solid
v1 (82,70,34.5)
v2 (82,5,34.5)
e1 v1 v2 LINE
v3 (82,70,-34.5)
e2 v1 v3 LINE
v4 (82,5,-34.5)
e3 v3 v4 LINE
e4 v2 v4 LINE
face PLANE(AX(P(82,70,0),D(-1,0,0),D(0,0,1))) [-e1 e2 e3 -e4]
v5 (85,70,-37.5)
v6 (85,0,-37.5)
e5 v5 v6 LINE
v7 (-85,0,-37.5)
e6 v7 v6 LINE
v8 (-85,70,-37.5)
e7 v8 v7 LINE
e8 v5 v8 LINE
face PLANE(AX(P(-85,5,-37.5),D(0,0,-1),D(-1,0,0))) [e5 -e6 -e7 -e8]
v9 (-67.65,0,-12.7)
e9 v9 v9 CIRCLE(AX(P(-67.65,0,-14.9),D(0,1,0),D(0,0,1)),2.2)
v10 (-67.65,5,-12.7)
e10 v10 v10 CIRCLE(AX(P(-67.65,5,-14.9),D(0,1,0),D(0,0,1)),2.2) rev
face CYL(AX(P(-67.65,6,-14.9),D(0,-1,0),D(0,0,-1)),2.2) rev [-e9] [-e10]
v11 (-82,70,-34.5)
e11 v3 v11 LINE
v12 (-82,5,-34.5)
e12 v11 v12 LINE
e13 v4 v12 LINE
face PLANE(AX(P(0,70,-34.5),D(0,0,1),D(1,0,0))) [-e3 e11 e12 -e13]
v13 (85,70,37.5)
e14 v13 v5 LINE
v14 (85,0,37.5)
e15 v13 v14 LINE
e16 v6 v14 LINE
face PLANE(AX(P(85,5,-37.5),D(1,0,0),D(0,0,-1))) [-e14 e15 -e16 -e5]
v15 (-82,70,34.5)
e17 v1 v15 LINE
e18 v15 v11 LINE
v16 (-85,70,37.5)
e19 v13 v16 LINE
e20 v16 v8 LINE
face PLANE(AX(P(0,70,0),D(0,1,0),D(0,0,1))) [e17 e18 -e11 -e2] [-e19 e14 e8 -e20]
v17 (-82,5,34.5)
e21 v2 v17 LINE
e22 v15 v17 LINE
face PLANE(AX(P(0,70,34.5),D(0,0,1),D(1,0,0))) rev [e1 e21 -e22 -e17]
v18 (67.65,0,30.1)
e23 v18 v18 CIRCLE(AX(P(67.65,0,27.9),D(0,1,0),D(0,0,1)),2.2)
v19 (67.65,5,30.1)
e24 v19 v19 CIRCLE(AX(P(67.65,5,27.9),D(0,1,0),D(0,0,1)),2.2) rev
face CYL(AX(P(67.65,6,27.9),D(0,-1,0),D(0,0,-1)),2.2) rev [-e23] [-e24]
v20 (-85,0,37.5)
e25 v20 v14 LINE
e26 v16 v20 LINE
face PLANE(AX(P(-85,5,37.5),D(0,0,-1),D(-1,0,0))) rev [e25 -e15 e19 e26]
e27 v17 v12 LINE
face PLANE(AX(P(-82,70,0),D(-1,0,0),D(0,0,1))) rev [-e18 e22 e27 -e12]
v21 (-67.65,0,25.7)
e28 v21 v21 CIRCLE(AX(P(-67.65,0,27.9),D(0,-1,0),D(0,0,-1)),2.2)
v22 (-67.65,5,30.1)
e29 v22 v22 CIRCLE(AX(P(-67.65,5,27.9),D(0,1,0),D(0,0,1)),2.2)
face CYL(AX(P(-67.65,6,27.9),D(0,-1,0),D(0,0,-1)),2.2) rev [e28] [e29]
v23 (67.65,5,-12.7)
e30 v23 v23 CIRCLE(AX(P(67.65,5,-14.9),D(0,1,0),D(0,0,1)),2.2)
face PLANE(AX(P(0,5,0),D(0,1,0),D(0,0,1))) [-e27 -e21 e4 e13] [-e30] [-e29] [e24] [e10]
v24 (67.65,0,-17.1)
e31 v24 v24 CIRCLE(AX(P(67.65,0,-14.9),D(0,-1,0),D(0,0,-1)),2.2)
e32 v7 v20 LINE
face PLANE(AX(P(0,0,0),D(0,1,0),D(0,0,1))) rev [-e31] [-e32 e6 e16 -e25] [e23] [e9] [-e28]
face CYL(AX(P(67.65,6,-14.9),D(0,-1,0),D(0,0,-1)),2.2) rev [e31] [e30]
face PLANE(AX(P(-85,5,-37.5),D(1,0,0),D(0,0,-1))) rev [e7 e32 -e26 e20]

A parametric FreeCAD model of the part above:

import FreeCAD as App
import Part
import Sketcher

V = App.Vector

doc = App.newDocument("Part")
body = doc.addObject("PartDesign::Body", "Body")

sketch1 = doc.addObject("Sketcher::SketchObject", "Sketch")
body.addObject(sketch1)
sketch1.AttachmentSupport = (doc.XZ_Plane, [""])
sketch1.MapMode = "FlatFace"
sketch1.addGeometry([
    Part.LineSegment(V(-85, -38, 0), V(-85, 38, 0)),
    Part.LineSegment(V(-85, 38, 0), V(85, 38, 0)),
    Part.LineSegment(V(85, 38, 0), V(85, -38, 0)),
    Part.LineSegment(V(85, -38, 0), V(-85, -38, 0)),
], False)
sketch1.addConstraint([
    Sketcher.Constraint("Coincident", 0, 2, 1, 1),
    Sketcher.Constraint("Coincident", 1, 2, 2, 1),
    Sketcher.Constraint("Coincident", 2, 2, 3, 1),
    Sketcher.Constraint("Coincident", 3, 2, 0, 1),
    Sketcher.Constraint("Vertical", 0),
    Sketcher.Constraint("Horizontal", 1),
    Sketcher.Constraint("Vertical", 2),
    Sketcher.Constraint("Horizontal", 3),
    Sketcher.Constraint("Symmetric", 0, 2, 2, 2, -1, 1),
    Sketcher.Constraint("DistanceX", 1, 1, 1, 2, 170.0),
    Sketcher.Constraint("DistanceY", 0, 1, 0, 2, 75.0),
])
pad1 = doc.addObject("PartDesign::Pad", "Pad")
body.addObject(pad1)
pad1.Profile = sketch1
pad1.Length = 5
pad1.Reversed = True

sketch2 = doc.addObject("Sketcher::SketchObject", "Sketch001")
body.addObject(sketch2)
sketch2.AttachmentSupport = (doc.XZ_Plane, [""])
sketch2.MapMode = "FlatFace"
sketch2.AttachmentOffset = App.Placement(V(0, 0, -5), App.Rotation())
sketch2.addGeometry([
    Part.LineSegment(V(-85, -38, 0), V(-85, 38, 0)),
    Part.LineSegment(V(-85, 38, 0), V(85, 38, 0)),
    Part.LineSegment(V(85, 38, 0), V(85, -38, 0)),
    Part.LineSegment(V(85, -38, 0), V(-85, -38, 0)),
    Part.LineSegment(V(82, 34, 0), V(-82, 34, 0)),
    Part.LineSegment(V(-82, 34, 0), V(-82, -34, 0)),
    Part.LineSegment(V(-82, -34, 0), V(82, -34, 0)),
    Part.LineSegment(V(82, -34, 0), V(82, 34, 0)),
], False)
sketch2.addConstraint([
    Sketcher.Constraint("Coincident", 0, 2, 1, 1),
    Sketcher.Constraint("Coincident", 1, 2, 2, 1),
    Sketcher.Constraint("Coincident", 2, 2, 3, 1),
    Sketcher.Constraint("Coincident", 3, 2, 0, 1),
    Sketcher.Constraint("Coincident", 4, 2, 5, 1),
    Sketcher.Constraint("Coincident", 5, 2, 6, 1),
    Sketcher.Constraint("Coincident", 6, 2, 7, 1),
    Sketcher.Constraint("Coincident", 7, 2, 4, 1),
    Sketcher.Constraint("Vertical", 0),
    Sketcher.Constraint("Horizontal", 1),
    Sketcher.Constraint("Vertical", 2),
    Sketcher.Constraint("Horizontal", 3),
    Sketcher.Constraint("Horizontal", 4),
    Sketcher.Constraint("Vertical", 5),
    Sketcher.Constraint("Horizontal", 6),
    Sketcher.Constraint("Vertical", 7),
    Sketcher.Constraint("Symmetric", 0, 2, 2, 2, -1, 1),
    Sketcher.Constraint("Symmetric", 4, 2, 6, 2, -1, 1),
    Sketcher.Constraint("DistanceX", 1, 1, 1, 2, 170.0),
    Sketcher.Constraint("DistanceX", 4, 2, 4, 1, 164.0),
    Sketcher.Constraint("DistanceY", 0, 1, 0, 2, 75.0),
    Sketcher.Constraint("DistanceY", 5, 2, 5, 1, 69.0),
])
pad2 = doc.addObject("PartDesign::Pad", "Pad001")
body.addObject(pad2)
pad2.Profile = sketch2
pad2.Length = 65
pad2.Reversed = True

sketch3 = doc.addObject("Sketcher::SketchObject", "Sketch002")
body.addObject(sketch3)
sketch3.AttachmentSupport = (doc.XZ_Plane, [""])
sketch3.MapMode = "FlatFace"
sketch3.addGeometry([
    Part.Circle(V(-67.7, -14.9, 0), V(0, 0, 1), 2.2),
    Part.Circle(V(67.7, -14.9, 0), V(0, 0, 1), 2.2),
    Part.Circle(V(67.7, 27.9, 0), V(0, 0, 1), 2.2),
    Part.Circle(V(-67.7, 27.9, 0), V(0, 0, 1), 2.2),
], False)
sketch3.addConstraint([
    Sketcher.Constraint("Equal", 0, 1),
    Sketcher.Constraint("Equal", 1, 2),
    Sketcher.Constraint("Equal", 2, 3),
    Sketcher.Constraint("Symmetric", 0, 3, 1, 3, -2),
    Sketcher.Constraint("Symmetric", 2, 3, 3, 3, -2),
    Sketcher.Constraint("Vertical", 1, 3, 2, 3),
    Sketcher.Constraint("Diameter", 0, 4.4),
    Sketcher.Constraint("DistanceY", 0, 3, -1, 1, 14.9),
    Sketcher.Constraint("DistanceY", -1, 1, 2, 3, 27.9),
    Sketcher.Constraint("DistanceX", 0, 3, 1, 3, 135.3),
])
pocket1 = doc.addObject("PartDesign::Pocket", "Pocket")
body.addObject(pocket1)
pocket1.Profile = sketch3
pocket1.Length = 6

doc.recompute()
